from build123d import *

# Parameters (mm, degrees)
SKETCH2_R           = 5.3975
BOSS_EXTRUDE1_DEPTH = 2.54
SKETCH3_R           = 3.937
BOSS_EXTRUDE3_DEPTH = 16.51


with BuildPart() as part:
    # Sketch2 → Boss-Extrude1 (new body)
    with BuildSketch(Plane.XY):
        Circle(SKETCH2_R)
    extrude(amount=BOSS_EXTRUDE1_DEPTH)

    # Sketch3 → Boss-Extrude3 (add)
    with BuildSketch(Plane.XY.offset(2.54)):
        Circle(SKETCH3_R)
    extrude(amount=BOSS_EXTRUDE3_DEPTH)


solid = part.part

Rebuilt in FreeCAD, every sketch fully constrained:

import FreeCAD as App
import Part
import Sketcher

V = App.Vector
Q = App.Units.Quantity

doc = App.newDocument("Part")
params = doc.addObject("Spreadsheet::Sheet", "Params")
for row, (alias, value) in enumerate([
    ("sketch1_diameter", "0.425 in"),
    ("pad1_length", "0.1 in"),
    ("sketch2_diameter", "0.31 in"),
    ("pad2_length", "0.65 in"),
], start=1):
    params.set(f"A{row}", alias)
    params.set(f"B{row}", "=" + value)
    params.setAlias(f"B{row}", alias)

body = doc.addObject("PartDesign::Body", "Body")

sketch1 = body.newObject("Sketcher::SketchObject", "Sketch")
sketch1.AttachmentSupport = (doc.getObject("XY_Plane"), [""])
sketch1.MapMode = "FlatFace"
sketch1.addGeometry(Part.Circle(V(0, 0, 0), V(0, 0, 1), 5), False)
sketch1.addConstraint([
    Sketcher.Constraint("Coincident", 0, 3, -1, 1),
    Sketcher.Constraint("Diameter", 0, Q("0.425 in")),
])
sketch1.setExpression("Constraints[1]", "Params.sketch1_diameter")
pad1 = body.newObject("PartDesign::Pad", "Pad")
pad1.Profile = sketch1
pad1.setExpression("Length", "Params.pad1_length")

sketch2 = body.newObject("Sketcher::SketchObject", "Sketch001")
sketch2.AttachmentSupport = (doc.getObject("XY_Plane"), [""])
sketch2.MapMode = "FlatFace"
sketch2.AttachmentOffset = App.Placement(V(0, 0, 0.1 * 25.4), App.Rotation())
sketch2.addGeometry(Part.Circle(V(0, 0, 0), V(0, 0, 1), 3.9), False)
sketch2.addConstraint([
    Sketcher.Constraint("Coincident", 0, 3, -1, 1),
    Sketcher.Constraint("Diameter", 0, Q("0.31 in")),
])
sketch2.setExpression("Constraints[1]", "Params.sketch2_diameter")
pad2 = body.newObject("PartDesign::Pad", "Pad001")
pad2.Profile = sketch2
pad2.setExpression("Length", "Params.pad2_length")

doc.recompute()
